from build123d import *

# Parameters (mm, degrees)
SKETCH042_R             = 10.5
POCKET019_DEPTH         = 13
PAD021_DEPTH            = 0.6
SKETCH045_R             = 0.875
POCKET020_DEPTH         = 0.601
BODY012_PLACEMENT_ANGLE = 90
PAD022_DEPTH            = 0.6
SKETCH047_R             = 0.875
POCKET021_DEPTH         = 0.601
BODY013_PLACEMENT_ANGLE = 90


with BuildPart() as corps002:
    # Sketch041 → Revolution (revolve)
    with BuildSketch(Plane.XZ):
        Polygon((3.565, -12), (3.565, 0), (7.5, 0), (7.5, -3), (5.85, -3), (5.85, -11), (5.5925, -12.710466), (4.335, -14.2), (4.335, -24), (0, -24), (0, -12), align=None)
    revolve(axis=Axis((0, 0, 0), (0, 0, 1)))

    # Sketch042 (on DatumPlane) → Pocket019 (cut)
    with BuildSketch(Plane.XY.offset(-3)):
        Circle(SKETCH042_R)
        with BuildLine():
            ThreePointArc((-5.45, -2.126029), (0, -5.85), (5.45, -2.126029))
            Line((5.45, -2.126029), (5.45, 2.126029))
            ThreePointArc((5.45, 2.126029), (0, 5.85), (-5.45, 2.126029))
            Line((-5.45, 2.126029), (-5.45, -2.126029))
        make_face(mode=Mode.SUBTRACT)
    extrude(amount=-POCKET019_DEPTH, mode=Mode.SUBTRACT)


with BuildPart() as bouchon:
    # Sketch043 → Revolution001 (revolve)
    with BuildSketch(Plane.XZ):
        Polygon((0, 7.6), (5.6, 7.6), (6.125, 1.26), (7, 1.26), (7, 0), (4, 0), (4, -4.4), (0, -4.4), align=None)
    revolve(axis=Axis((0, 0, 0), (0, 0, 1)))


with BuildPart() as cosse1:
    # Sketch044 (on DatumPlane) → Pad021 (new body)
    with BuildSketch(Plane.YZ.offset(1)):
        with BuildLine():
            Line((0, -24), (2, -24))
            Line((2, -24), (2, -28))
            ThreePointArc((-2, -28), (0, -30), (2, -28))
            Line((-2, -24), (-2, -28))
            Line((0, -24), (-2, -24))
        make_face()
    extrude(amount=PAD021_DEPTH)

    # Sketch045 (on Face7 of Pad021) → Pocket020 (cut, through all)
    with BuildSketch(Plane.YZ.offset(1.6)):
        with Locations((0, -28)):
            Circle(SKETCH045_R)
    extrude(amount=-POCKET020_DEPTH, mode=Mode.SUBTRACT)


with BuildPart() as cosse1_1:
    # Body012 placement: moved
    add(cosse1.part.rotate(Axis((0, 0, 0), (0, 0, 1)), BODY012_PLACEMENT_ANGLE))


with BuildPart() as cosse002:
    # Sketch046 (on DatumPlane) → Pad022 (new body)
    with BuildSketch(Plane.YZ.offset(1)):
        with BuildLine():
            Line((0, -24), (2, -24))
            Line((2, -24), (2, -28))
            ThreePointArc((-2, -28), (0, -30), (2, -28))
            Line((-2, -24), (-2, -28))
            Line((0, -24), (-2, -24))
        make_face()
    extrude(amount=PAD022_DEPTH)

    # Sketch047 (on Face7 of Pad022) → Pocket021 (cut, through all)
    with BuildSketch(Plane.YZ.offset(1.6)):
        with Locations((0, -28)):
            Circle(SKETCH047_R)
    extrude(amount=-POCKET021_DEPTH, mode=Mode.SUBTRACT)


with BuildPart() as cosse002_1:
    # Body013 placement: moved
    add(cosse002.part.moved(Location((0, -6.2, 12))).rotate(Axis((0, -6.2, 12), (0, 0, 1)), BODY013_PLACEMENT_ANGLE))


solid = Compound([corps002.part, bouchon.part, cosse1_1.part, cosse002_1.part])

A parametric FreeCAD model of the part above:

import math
import FreeCAD as App
import Part
import Sketcher

V = App.Vector
Q = App.Units.Quantity


def add_polygon(sketch, points):
    """Adds a closed chain of lines whose ends are joined by coincident constraints."""
    first, n = sketch.GeometryCount, len(points)
    for a, b in zip(points, points[1:] + points[:1]):
        sketch.addGeometry(Part.LineSegment(App.Vector(*a, 0), App.Vector(*b, 0)), False)
    for i in range(n):
        sketch.addConstraint(Sketcher.Constraint("Coincident", first + i, 2, first + (i + 1) % n, 1))

doc = App.newDocument("Part")
body = doc.addObject("PartDesign::Body", "Body")

sketch1 = body.newObject("Sketcher::SketchObject", "Sketch")
sketch1.AttachmentSupport = (doc.getObject("XZ_Plane"), [""])
sketch1.MapMode = "FlatFace"
add_polygon(sketch1, [(3.6, 0), (3.6, -12), (0, -12), (0, -24), (4.3, -24), (4.3, -14.2), (5.6, -12.7), (5.8, -11), (5.8, -3), (7.5, -3), (7.5, 0)])
sketch1.addConstraint(Sketcher.Constraint("Vertical", 0))
sketch1.addConstraint(Sketcher.Constraint("Horizontal", 1))
sketch1.addConstraint(Sketcher.Constraint("Vertical", 2))
sketch1.addConstraint(Sketcher.Constraint("Horizontal", 3))
sketch1.addConstraint(Sketcher.Constraint("Vertical", 4))
sketch1.addConstraint(Sketcher.Constraint("Vertical", 7))
sketch1.addConstraint(Sketcher.Constraint("Horizontal", 8))
sketch1.addConstraint(Sketcher.Constraint("Vertical", 9))
sketch1.addConstraint(Sketcher.Constraint("Horizontal", 10))
sketch1.addConstraint(Sketcher.Constraint("PointOnObject", 1, 2, -2))
sketch1.addConstraint(Sketcher.Constraint("PointOnObject", 9, 2, -1))
sketch1.addConstraint(Sketcher.Constraint("Equal", 0, 2))
sketch1.addConstraint(Sketcher.Constraint("DistanceY", 0, 2, 0, 1, Q("12 mm")))
sketch1.addConstraint(Sketcher.Constraint("DistanceY", 7, 1, 7, 2, Q("8 mm")))
sketch1.addConstraint(Sketcher.Constraint("DistanceY", 9, 1, 9, 2, Q("3 mm")))
sketch1.addConstraint(Sketcher.Constraint("DistanceY", 4, 1, 4, 2, Q("9.8 mm")))
sketch1.addConstraint(Sketcher.Constraint("DistanceX", 8, 1, 8, 2, Q("1.65 mm")))
sketch1.addConstraint(Sketcher.Constraint("DistanceX", -1, 1, 8, 2, Q("7.5 mm")))
sketch1.addConstraint(Sketcher.Constraint("DistanceX", 1, 2, 1, 1, Q("3.565 mm")))
sketch1.addConstraint(Sketcher.Constraint("DistanceX", 3, 1, 3, 2, Q("4.335 mm")))
sketch1.addConstraint(Sketcher.Constraint("DistanceX", -1, 1, 5, 2, Q("5.5925 mm")))
sketch1.addConstraint(Sketcher.Constraint("Distance", 6, Q("1.72974 mm")))
revolution = body.newObject("PartDesign::Revolution", "Revolution")
revolution.Profile = sketch1
revolution.ReferenceAxis = (sketch1, ["V_Axis"])
revolution.Angle = 360

sketch2 = body.newObject("Sketcher::SketchObject", "Sketch001")
sketch2.AttachmentSupport = (doc.getObject("XY_Plane"), [""])
sketch2.MapMode = "FlatFace"
sketch2.AttachmentOffset = App.Placement(V(0, 0, -3), App.Rotation())
sketch2.addGeometry(Part.Circle(V(0, 0, 0), V(0, 0, 1), 10.5), False)
sketch2.addGeometry(Part.ArcOfCircle(Part.Circle(V(0, 0, 0), V(0, 0, 1), 5.8), math.radians(-159), math.radians(-21)), False)
sketch2.addGeometry(Part.LineSegment(V(-5.5, -2.1, 0), V(-5.5, 2.1, 0)), False)
sketch2.addGeometry(Part.ArcOfCircle(Part.Circle(V(0, 0, 0), V(0, 0, 1), 5.8), math.radians(21), math.radians(159)), False)
sketch2.addGeometry(Part.LineSegment(V(5.5, 2.1, 0), V(5.5, -2.1, 0)), False)
sketch2.addConstraint(Sketcher.Constraint("Coincident", 1, 1, 2, 1))
sketch2.addConstraint(Sketcher.Constraint("Coincident", 2, 2, 3, 2))
sketch2.addConstraint(Sketcher.Constraint("Coincident", 3, 1, 4, 1))
sketch2.addConstraint(Sketcher.Constraint("Coincident", 4, 2, 1, 2))
sketch2.addConstraint(Sketcher.Constraint("Vertical", 2))
sketch2.addConstraint(Sketcher.Constraint("Vertical", 4))
sketch2.addConstraint(Sketcher.Constraint("Coincident", 0, 3, -1, 1))
sketch2.addConstraint(Sketcher.Constraint("Coincident", 1, 3, -1, 1))
sketch2.addConstraint(Sketcher.Constraint("Coincident", 3, 3, -1, 1))
sketch2.addConstraint(Sketcher.Constraint("Equal", 1, 3))
sketch2.addConstraint(Sketcher.Constraint("Horizontal", 2, 2, 3, 1))
sketch2.addConstraint(Sketcher.Constraint("Diameter", 0, Q("21 mm")))
sketch2.addConstraint(Sketcher.Constraint("Radius", 1, Q("5.85 mm")))
sketch2.addConstraint(Sketcher.Constraint("DistanceX", 2, 2, 3, 1, Q("10.9 mm")))
pocket1 = body.newObject("PartDesign::Pocket", "Pocket")
pocket1.Profile = sketch2
pocket1.Length = 13
body2 = doc.addObject("PartDesign::Body", "Body001")

sketch3 = body2.newObject("Sketcher::SketchObject", "Sketch002")
sketch3.AttachmentSupport = (doc.getObject("XZ_Plane001"), [""])
sketch3.MapMode = "FlatFace"
add_polygon(sketch3, [(5.6, 7.6), (0, 7.6), (0, -4.4), (4, -4.4), (4, 0), (7, 0), (7, 1.3), (6.1, 1.3)])
sketch3.addConstraint(Sketcher.Constraint("Horizontal", 0))
sketch3.addConstraint(Sketcher.Constraint("Vertical", 1))
sketch3.addConstraint(Sketcher.Constraint("Horizontal", 2))
sketch3.addConstraint(Sketcher.Constraint("Vertical", 3))
sketch3.addConstraint(Sketcher.Constraint("Horizontal", 4))
sketch3.addConstraint(Sketcher.Constraint("Vertical", 5))
sketch3.addConstraint(Sketcher.Constraint("Horizontal", 6))
sketch3.addConstraint(Sketcher.Constraint("PointOnObject", 0, 2, -2))
sketch3.addConstraint(Sketcher.Constraint("PointOnObject", 3, 2, -1))
sketch3.addConstraint(Sketcher.Constraint("DistanceX", 2, 1, 2, 2, Q("4 mm")))
sketch3.addConstraint(Sketcher.Constraint("DistanceX", 4, 1, 4, 2, Q("3 mm")))
sketch3.addConstraint(Sketcher.Constraint("DistanceY", 1, 2, 1, 1, Q("12 mm")))
sketch3.addConstraint(Sketcher.Constraint("DistanceX", 0, 2, 0, 1, Q("5.6 mm")))
sketch3.addConstraint(Sketcher.Constraint("DistanceY", 3, 1, 3, 2, Q("4.4 mm")))
sketch3.addConstraint(Sketcher.Constraint("DistanceY", 5, 1, 5, 2, Q("1.26 mm")))
sketch3.addConstraint(Sketcher.Constraint("DistanceX", 6, 2, 6, 1, Q("0.875 mm")))
revolution2 = body2.newObject("PartDesign::Revolution", "Revolution001")
revolution2.Profile = sketch3
revolution2.ReferenceAxis = (sketch3, ["V_Axis"])
revolution2.Angle = 360
body3 = doc.addObject("PartDesign::Body", "Body002")

sketch4 = body3.newObject("Sketcher::SketchObject", "Sketch003")
sketch4.AttachmentSupport = (doc.getObject("YZ_Plane002"), [""])
sketch4.MapMode = "FlatFace"
sketch4.AttachmentOffset = App.Placement(V(0, 0, 1), App.Rotation())
sketch4.addGeometry(Part.LineSegment(V(2, -24, 0), V(-2, -24, 0)), False)
sketch4.addGeometry(Part.LineSegment(V(-2, -24, 0), V(-2, -28, 0)), False)
sketch4.addGeometry(Part.ArcOfCircle(Part.Circle(V(0, -28, 0), V(0, 0, 1), 2), math.radians(180), math.radians(360)), False)
sketch4.addGeometry(Part.LineSegment(V(2, -28, 0), V(2, -24, 0)), False)
sketch4.addConstraint(Sketcher.Constraint("Coincident", 0, 2, 1, 1))
sketch4.addConstraint(Sketcher.Constraint("Tangent", 1, 2, 2, 1))
sketch4.addConstraint(Sketcher.Constraint("Tangent", 2, 2, 3, 1))
sketch4.addConstraint(Sketcher.Constraint("Coincident", 3, 2, 0, 1))
sketch4.addConstraint(Sketcher.Constraint("Horizontal", 0))
sketch4.addConstraint(Sketcher.Constraint("Vertical", 1))
sketch4.addConstraint(Sketcher.Constraint("Vertical", 3))
sketch4.addConstraint(Sketcher.Constraint("PointOnObject", 2, 3, -2))
sketch4.addConstraint(Sketcher.Constraint("Equal", 0, 1))
sketch4.addConstraint(Sketcher.Constraint("Radius", 2, Q("2 mm")))
sketch4.addConstraint(Sketcher.Constraint("DistanceY", 2, 3, -1, 1, Q("28 mm")))
pad1 = body3.newObject("PartDesign::Pad", "Pad")
pad1.Profile = sketch4
pad1.Length = 0.6

sketch5 = body3.newObject("Sketcher::SketchObject", "Sketch004")
sketch5.AttachmentSupport = (doc.getObject("YZ_Plane002"), [""])
sketch5.MapMode = "FlatFace"
sketch5.AttachmentOffset = App.Placement(V(0, 0, 1.6), App.Rotation())
sketch5.addGeometry(Part.Circle(V(0, -28, 0), V(0, 0, 1), 0.9), False)
sketch5.addConstraint(Sketcher.Constraint("PointOnObject", 0, 3, -2))
sketch5.addConstraint(Sketcher.Constraint("Diameter", 0, Q("1.75 mm")))
sketch5.addConstraint(Sketcher.Constraint("DistanceY", 0, 3, -1, 1, Q("28 mm")))
pocket2 = body3.newObject("PartDesign::Pocket", "Pocket001")
pocket2.Profile = sketch5
pocket2.Type = "ThroughAll"
body4 = doc.addObject("PartDesign::Body", "Body003")
doc.recompute()

body3.Placement = App.Placement(V(0, 0, 0), App.Rotation(V(0, 0, 1), 90))
boolean = body4.newObject("PartDesign::Boolean", "Boolean")
boolean.Type = "Fuse"
boolean.addObjects([body3])
body5 = doc.addObject("PartDesign::Body", "Body004")

sketch6 = body5.newObject("Sketcher::SketchObject", "Sketch005")
sketch6.AttachmentSupport = (doc.getObject("YZ_Plane004"), [""])
sketch6.MapMode = "FlatFace"
sketch6.AttachmentOffset = App.Placement(V(0, 0, 1), App.Rotation())
sketch6.addGeometry(Part.LineSegment(V(2, -24, 0), V(-2, -24, 0)), False)
sketch6.addGeometry(Part.LineSegment(V(-2, -24, 0), V(-2, -28, 0)), False)
sketch6.addGeometry(Part.ArcOfCircle(Part.Circle(V(0, -28, 0), V(0, 0, 1), 2), math.radians(180), math.radians(360)), False)
sketch6.addGeometry(Part.LineSegment(V(2, -28, 0), V(2, -24, 0)), False)
sketch6.addConstraint(Sketcher.Constraint("Coincident", 0, 2, 1, 1))
sketch6.addConstraint(Sketcher.Constraint("Tangent", 1, 2, 2, 1))
sketch6.addConstraint(Sketcher.Constraint("Tangent", 2, 2, 3, 1))
sketch6.addConstraint(Sketcher.Constraint("Coincident", 3, 2, 0, 1))
sketch6.addConstraint(Sketcher.Constraint("Horizontal", 0))
sketch6.addConstraint(Sketcher.Constraint("Vertical", 1))
sketch6.addConstraint(Sketcher.Constraint("Vertical", 3))
sketch6.addConstraint(Sketcher.Constraint("PointOnObject", 2, 3, -2))
sketch6.addConstraint(Sketcher.Constraint("Equal", 0, 1))
sketch6.addConstraint(Sketcher.Constraint("Radius", 2, Q("2 mm")))
sketch6.addConstraint(Sketcher.Constraint("DistanceY", 2, 3, -1, 1, Q("28 mm")))
pad2 = body5.newObject("PartDesign::Pad", "Pad001")
pad2.Profile = sketch6
pad2.Length = 0.6

sketch7 = body5.newObject("Sketcher::SketchObject", "Sketch006")
sketch7.AttachmentSupport = (doc.getObject("YZ_Plane004"), [""])
sketch7.MapMode = "FlatFace"
sketch7.AttachmentOffset = App.Placement(V(0, 0, 1.6), App.Rotation())
sketch7.addGeometry(Part.Circle(V(0, -28, 0), V(0, 0, 1), 0.9), False)
sketch7.addConstraint(Sketcher.Constraint("PointOnObject", 0, 3, -2))
sketch7.addConstraint(Sketcher.Constraint("Diameter", 0, Q("1.75 mm")))
sketch7.addConstraint(Sketcher.Constraint("DistanceY", 0, 3, -1, 1, Q("28 mm")))
pocket3 = body5.newObject("PartDesign::Pocket", "Pocket002")
pocket3.Profile = sketch7
pocket3.Type = "ThroughAll"
body6 = doc.addObject("PartDesign::Body", "Body005")
doc.recompute()

body5.Placement = App.Placement(V(0, -6.2, 12), App.Rotation(V(0, 0, 1), 90))
boolean2 = body6.newObject("PartDesign::Boolean", "Boolean001")
boolean2.Type = "Fuse"
boolean2.addObjects([body5])

doc.recompute()
